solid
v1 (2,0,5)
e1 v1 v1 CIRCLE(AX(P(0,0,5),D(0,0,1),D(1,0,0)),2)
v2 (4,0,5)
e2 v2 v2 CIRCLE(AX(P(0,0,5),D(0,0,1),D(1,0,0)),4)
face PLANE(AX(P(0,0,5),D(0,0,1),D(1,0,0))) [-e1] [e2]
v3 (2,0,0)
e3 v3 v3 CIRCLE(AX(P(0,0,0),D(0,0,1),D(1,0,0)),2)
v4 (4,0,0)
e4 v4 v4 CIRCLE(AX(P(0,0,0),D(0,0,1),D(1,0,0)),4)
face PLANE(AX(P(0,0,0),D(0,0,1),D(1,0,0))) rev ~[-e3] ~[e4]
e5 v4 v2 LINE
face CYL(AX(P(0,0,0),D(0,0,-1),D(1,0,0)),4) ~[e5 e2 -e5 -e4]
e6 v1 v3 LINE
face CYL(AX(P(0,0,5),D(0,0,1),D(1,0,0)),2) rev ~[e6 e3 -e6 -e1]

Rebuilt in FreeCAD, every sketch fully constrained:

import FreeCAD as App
import Part
import Sketcher

V = App.Vector
Q = App.Units.Quantity

doc = App.newDocument("Part")
body = doc.addObject("PartDesign::Body", "Body")

# Sketch on XY plane
sketch1 = body.newObject("Sketcher::SketchObject", "Sketch")
sketch1.AttachmentSupport = (doc.getObject("XY_Plane"), [""])
sketch1.MapMode = "FlatFace"
sketch1.addGeometry(Part.Circle(V(0, 0, 0), V(0, 0, 1), 4), False)
sketch1.addConstraint([
    Sketcher.Constraint("Coincident", 0, 3, -1, 1),
    Sketcher.Constraint("Diameter", 0, Q("8 mm")),
])
pad1 = body.newObject("PartDesign::Pad", "Pad")
pad1.Profile = sketch1
pad1.Length = 5

# Sketch on XY plane
sketch2 = body.newObject("Sketcher::SketchObject", "Sketch001")
sketch2.AttachmentSupport = (doc.getObject("XY_Plane"), [""])
sketch2.MapMode = "FlatFace"
sketch2.AttachmentOffset = App.Placement(V(0, 0, 5), App.Rotation())
sketch2.addGeometry(Part.Circle(V(0, 0, 0), V(0, 0, 1), 2), False)
sketch2.addConstraint([
    Sketcher.Constraint("Coincident", 0, 3, -1, 1),
    Sketcher.Constraint("Diameter", 0, Q("4 mm")),
])
pocket1 = body.newObject("PartDesign::Pocket", "Pocket")
pocket1.Profile = sketch2
pocket1.Length = 5

doc.recompute()
